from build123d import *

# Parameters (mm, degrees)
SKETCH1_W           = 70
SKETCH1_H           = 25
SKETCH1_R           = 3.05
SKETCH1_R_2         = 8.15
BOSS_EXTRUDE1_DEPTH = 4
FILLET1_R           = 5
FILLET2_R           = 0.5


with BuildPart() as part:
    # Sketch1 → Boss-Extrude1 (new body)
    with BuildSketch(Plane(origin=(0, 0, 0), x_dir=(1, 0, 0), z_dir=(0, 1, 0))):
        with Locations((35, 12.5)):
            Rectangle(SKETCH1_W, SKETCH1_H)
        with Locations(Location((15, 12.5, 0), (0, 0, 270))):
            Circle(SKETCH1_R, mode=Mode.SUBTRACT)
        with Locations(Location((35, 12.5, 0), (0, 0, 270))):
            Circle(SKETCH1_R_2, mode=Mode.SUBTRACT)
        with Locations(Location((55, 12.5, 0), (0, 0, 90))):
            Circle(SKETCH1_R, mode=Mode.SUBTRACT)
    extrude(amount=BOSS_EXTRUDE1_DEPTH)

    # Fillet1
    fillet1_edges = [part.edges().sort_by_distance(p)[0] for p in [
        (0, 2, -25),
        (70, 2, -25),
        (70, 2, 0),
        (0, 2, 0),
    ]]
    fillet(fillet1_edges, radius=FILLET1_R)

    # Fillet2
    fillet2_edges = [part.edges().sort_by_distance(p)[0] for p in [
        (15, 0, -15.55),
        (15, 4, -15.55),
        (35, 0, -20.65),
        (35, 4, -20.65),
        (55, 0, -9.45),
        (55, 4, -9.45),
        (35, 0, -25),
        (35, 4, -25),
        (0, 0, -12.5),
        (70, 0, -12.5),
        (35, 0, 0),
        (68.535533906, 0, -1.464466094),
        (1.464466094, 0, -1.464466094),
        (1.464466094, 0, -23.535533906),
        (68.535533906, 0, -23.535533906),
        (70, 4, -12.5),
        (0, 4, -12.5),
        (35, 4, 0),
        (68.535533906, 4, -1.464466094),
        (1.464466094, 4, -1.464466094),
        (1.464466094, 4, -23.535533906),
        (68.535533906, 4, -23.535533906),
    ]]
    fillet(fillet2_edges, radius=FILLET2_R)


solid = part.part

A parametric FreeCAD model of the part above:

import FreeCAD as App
import Part
import Sketcher

V = App.Vector


def edges_at(feature, points):
    """Names of the edges that pass closest to the given points."""
    edges = feature.Shape.Edges
    near = lambda p: min(range(len(edges)), key=lambda i: edges[i].distToShape(Part.Vertex(*p))[0])
    return sorted({f"Edge{near(p) + 1}" for p in points})

doc = App.newDocument("Part")
body = doc.addObject("PartDesign::Body", "Body")

# Sketch on XZ plane
sketch1 = body.newObject("Sketcher::SketchObject", "Sketch")
sketch1.AttachmentSupport = (doc.getObject("XZ_Plane"), [""])
sketch1.MapMode = "FlatFace"
sketch1.addGeometry([
    Part.LineSegment(V(0, -25, 0), V(0, 0, 0)),  # 0
    Part.LineSegment(V(0, 0, 0), V(70, 0, 0)),  # 1
    Part.LineSegment(V(70, 0, 0), V(70, -25, 0)),  # 2
    Part.LineSegment(V(70, -25, 0), V(0, -25, 0)),  # 3
    Part.Circle(V(15, -12.5, 0), V(0, 0, 1), 3),  # 4
    Part.Circle(V(35, -12.5, 0), V(0, 0, 1), 8.2),  # 5
    Part.Circle(V(55, -12.5, 0), V(0, 0, 1), 3),  # 6
], False)
sketch1.addConstraint([
    Sketcher.Constraint("Coincident", 0, 2, 1, 1),
    Sketcher.Constraint("Coincident", 1, 2, 2, 1),
    Sketcher.Constraint("Coincident", 2, 2, 3, 1),
    Sketcher.Constraint("Coincident", 3, 2, 0, 1),
    Sketcher.Constraint("Vertical", 0),
    Sketcher.Constraint("Horizontal", 1),
    Sketcher.Constraint("Vertical", 2),
    Sketcher.Constraint("Horizontal", 3),
    Sketcher.Constraint("Coincident", 0, 2, -1, 1),
    Sketcher.Constraint("Equal", 4, 6),
    Sketcher.Constraint("Horizontal", 4, 3, 5, 3),
    Sketcher.Constraint("Horizontal", 5, 3, 6, 3),
    Sketcher.Constraint("Diameter", 4, 6.1),
    Sketcher.Constraint("Diameter", 5, 16.3),
    Sketcher.Constraint("DistanceX", 1, 1, 1, 2, 70.0),
    Sketcher.Constraint("DistanceY", 0, 1, 0, 2, 25.0),
    Sketcher.Constraint("DistanceX", -1, 1, 4, 3, 15.0),
    Sketcher.Constraint("DistanceX", -1, 1, 5, 3, 35.0),
    Sketcher.Constraint("DistanceX", -1, 1, 6, 3, 55.0),
    Sketcher.Constraint("DistanceY", 4, 3, -1, 1, 12.5),
])
pad1 = body.newObject("PartDesign::Pad", "Pad")
pad1.Profile = sketch1
pad1.Length = 4
pad1.Reversed = True
doc.recompute()

fillet = body.newObject("PartDesign::Fillet", "Fillet")
fillet.Base = (pad1, edges_at(pad1, [
    (0, 2, -25),
    (70, 2, -25),
    (70, 2, 0),
    (0, 2, 0),
]))
fillet.Radius = 5
doc.recompute()

fillet2 = body.newObject("PartDesign::Fillet", "Fillet001")
fillet2.Base = (fillet, edges_at(fillet, [
    (15, 0, -15.55),
    (15, 4, -15.55),
    (35, 0, -20.65),
    (35, 4, -20.65),
    (55, 0, -9.45),
    (55, 4, -9.45),
    (35, 0, -25),
    (35, 4, -25),
    (0, 0, -12.5),
    (70, 0, -12.5),
    (35, 0, 0),
    (68.536, 0, -1.464),
    (1.464, 0, -1.464),
    (1.464, 0, -23.536),
    (68.536, 0, -23.536),
    (70, 4, -12.5),
    (0, 4, -12.5),
    (35, 4, 0),
    (68.536, 4, -1.464),
    (1.464, 4, -1.464),
    (1.464, 4, -23.536),
    (68.536, 4, -23.536),
]))
fillet2.Radius = 0.5

doc.recompute()
